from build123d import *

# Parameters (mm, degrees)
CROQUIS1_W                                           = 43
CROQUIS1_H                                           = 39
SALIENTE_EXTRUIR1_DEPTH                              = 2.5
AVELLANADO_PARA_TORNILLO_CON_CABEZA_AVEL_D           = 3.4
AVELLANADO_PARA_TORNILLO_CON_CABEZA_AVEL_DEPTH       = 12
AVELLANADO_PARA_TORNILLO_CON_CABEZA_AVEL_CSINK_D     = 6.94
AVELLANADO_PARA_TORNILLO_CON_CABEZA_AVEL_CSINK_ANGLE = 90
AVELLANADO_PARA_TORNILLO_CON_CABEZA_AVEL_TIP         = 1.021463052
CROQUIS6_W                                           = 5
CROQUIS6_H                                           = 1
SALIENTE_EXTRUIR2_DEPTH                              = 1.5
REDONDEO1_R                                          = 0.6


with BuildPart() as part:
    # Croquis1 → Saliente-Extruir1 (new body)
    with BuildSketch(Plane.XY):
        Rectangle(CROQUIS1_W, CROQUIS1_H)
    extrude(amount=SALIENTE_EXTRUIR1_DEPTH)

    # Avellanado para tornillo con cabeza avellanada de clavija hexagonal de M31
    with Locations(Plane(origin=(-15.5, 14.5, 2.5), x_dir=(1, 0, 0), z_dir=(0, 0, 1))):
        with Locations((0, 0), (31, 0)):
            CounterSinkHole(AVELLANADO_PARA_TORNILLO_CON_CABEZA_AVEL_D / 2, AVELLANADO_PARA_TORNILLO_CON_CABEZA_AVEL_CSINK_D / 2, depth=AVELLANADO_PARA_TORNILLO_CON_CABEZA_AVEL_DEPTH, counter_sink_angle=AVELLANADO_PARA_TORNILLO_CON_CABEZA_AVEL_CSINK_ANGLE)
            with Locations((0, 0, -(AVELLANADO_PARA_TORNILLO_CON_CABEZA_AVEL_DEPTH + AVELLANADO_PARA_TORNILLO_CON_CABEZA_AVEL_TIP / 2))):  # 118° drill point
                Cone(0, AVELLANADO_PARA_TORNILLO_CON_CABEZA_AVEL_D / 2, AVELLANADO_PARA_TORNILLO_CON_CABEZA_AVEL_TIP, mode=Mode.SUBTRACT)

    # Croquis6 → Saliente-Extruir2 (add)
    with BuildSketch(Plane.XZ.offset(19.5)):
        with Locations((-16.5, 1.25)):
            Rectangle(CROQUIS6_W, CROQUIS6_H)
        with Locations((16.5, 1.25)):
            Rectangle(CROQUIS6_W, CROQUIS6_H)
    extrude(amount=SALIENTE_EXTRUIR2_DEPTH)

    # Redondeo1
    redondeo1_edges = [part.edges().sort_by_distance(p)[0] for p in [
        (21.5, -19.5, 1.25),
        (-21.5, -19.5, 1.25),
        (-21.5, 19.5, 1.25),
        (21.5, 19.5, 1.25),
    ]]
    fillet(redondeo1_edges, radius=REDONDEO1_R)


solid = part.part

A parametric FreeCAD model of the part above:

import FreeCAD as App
import Part
import Sketcher
Q = App.Units.Quantity


def edges_at(feature, points):
    """Names of the edges that pass closest to the given points."""
    edges = feature.Shape.Edges
    near = lambda p: min(range(len(edges)), key=lambda i: edges[i].distToShape(Part.Vertex(*p))[0])
    return sorted({f"Edge{near(p) + 1}" for p in points})


def add_polygon(sketch, points):
    """Adds a closed chain of lines whose ends are joined by coincident constraints."""
    first, n = sketch.GeometryCount, len(points)
    for a, b in zip(points, points[1:] + points[:1]):
        sketch.addGeometry(Part.LineSegment(App.Vector(*a, 0), App.Vector(*b, 0)), False)
    for i in range(n):
        sketch.addConstraint(Sketcher.Constraint("Coincident", first + i, 2, first + (i + 1) % n, 1))

doc = App.newDocument("Part")
body = doc.addObject("PartDesign::Body", "Body")

# Sketch on XY plane
sketch1 = body.newObject("Sketcher::SketchObject", "Sketch")
sketch1.AttachmentSupport = (doc.getObject("XY_Plane"), [""])
sketch1.MapMode = "FlatFace"
add_polygon(sketch1, [(-22, 20), (-22, -20), (22, -20), (22, 20)])  # lines 0-3
sketch1.addConstraint(Sketcher.Constraint("Vertical", 0))
sketch1.addConstraint(Sketcher.Constraint("Horizontal", 1))
sketch1.addConstraint(Sketcher.Constraint("Vertical", 2))
sketch1.addConstraint(Sketcher.Constraint("Horizontal", 3))
sketch1.addConstraint(Sketcher.Constraint("Symmetric", 0, 2, 2, 2, -1, 1))
sketch1.addConstraint(Sketcher.Constraint("DistanceX", 1, 1, 1, 2, Q("43 mm")))
sketch1.addConstraint(Sketcher.Constraint("DistanceY", 0, 2, 0, 1, Q("39 mm")))
pad1 = body.newObject("PartDesign::Pad", "Pad")
pad1.Profile = sketch1
pad1.Length = 2.5

# Sketch on XY plane
sketch2 = body.newObject("Sketcher::SketchObject", "Sketch001")
sketch2.AttachmentSupport = (doc.getObject("XY_Plane"), [""])
sketch2.MapMode = "FlatFace"
sketch2.AttachmentOffset = App.Placement(App.Vector(0, 0, 2.5), App.Rotation())
sketch2.addGeometry(Part.Circle(App.Vector(-15.5, 14.5, 0), App.Vector(0, 0, 1), 1.7), False)
sketch2.addGeometry(Part.Circle(App.Vector(15.5, 14.5, 0), App.Vector(0, 0, 1), 1.7), False)
sketch2.addConstraint(Sketcher.Constraint("Equal", 0, 1))
sketch2.addConstraint(Sketcher.Constraint("Symmetric", 0, 3, 1, 3, -2))
sketch2.addConstraint(Sketcher.Constraint("Diameter", 0, Q("3.4 mm")))
sketch2.addConstraint(Sketcher.Constraint("DistanceX", 0, 3, 1, 3, Q("31 mm")))
sketch2.addConstraint(Sketcher.Constraint("DistanceY", -1, 1, 0, 3, Q("14.5 mm")))
doc.recompute()
hole = body.newObject("PartDesign::Hole", "Hole")
hole.Profile = sketch2
hole.ThreadType = "None"
hole.Diameter = 3.4
hole.DepthType = "Dimension"
hole.Depth = 12
hole.DrillPoint = "Angled"
hole.DrillPointAngle = 118
hole.HoleCutType = "Countersink"
hole.HoleCutDiameter = 6.94
hole.HoleCutCountersinkAngle = 90

# Sketch on XZ plane
sketch3 = body.newObject("Sketcher::SketchObject", "Sketch002")
sketch3.AttachmentSupport = (doc.getObject("XZ_Plane"), [""])
sketch3.MapMode = "FlatFace"
sketch3.AttachmentOffset = App.Placement(App.Vector(0, 0, 19.5), App.Rotation())
add_polygon(sketch3, [(-19, 1.8), (-19, 0.8), (-14, 0.8), (-14, 1.8)])  # lines 0-3
add_polygon(sketch3, [(14, 1.8), (14, 0.8), (19, 0.8), (19, 1.8)])  # lines 4-7
sketch3.addConstraint(Sketcher.Constraint("Vertical", 0))
sketch3.addConstraint(Sketcher.Constraint("Horizontal", 1))
sketch3.addConstraint(Sketcher.Constraint("Vertical", 2))
sketch3.addConstraint(Sketcher.Constraint("Horizontal", 3))
sketch3.addConstraint(Sketcher.Constraint("Vertical", 4))
sketch3.addConstraint(Sketcher.Constraint("Horizontal", 5))
sketch3.addConstraint(Sketcher.Constraint("Vertical", 6))
sketch3.addConstraint(Sketcher.Constraint("Horizontal", 7))
sketch3.addConstraint(Sketcher.Constraint("Symmetric", 1, 2, 4, 2, -2))
sketch3.addConstraint(Sketcher.Constraint("Symmetric", 3, 2, 6, 2, -2))
sketch3.addConstraint(Sketcher.Constraint("DistanceX", 1, 1, 1, 2, Q("5 mm")))
sketch3.addConstraint(Sketcher.Constraint("DistanceY", 0, 2, 0, 1, Q("1 mm")))
sketch3.addConstraint(Sketcher.Constraint("DistanceX", 0, 2, -1, 1, Q("19 mm")))
sketch3.addConstraint(Sketcher.Constraint("DistanceY", -1, 1, 0, 2, Q("0.75 mm")))
pad2 = body.newObject("PartDesign::Pad", "Pad001")
pad2.Profile = sketch3
pad2.Length = 1.5
doc.recompute()

fillet = body.newObject("PartDesign::Fillet", "Fillet")
fillet.Base = (pad2, edges_at(pad2, [
    (21.5, -19.5, 1.25),
    (-21.5, -19.5, 1.25),
    (-21.5, 19.5, 1.25),
    (21.5, 19.5, 1.25),
]))
fillet.Radius = 0.6

doc.recompute()
